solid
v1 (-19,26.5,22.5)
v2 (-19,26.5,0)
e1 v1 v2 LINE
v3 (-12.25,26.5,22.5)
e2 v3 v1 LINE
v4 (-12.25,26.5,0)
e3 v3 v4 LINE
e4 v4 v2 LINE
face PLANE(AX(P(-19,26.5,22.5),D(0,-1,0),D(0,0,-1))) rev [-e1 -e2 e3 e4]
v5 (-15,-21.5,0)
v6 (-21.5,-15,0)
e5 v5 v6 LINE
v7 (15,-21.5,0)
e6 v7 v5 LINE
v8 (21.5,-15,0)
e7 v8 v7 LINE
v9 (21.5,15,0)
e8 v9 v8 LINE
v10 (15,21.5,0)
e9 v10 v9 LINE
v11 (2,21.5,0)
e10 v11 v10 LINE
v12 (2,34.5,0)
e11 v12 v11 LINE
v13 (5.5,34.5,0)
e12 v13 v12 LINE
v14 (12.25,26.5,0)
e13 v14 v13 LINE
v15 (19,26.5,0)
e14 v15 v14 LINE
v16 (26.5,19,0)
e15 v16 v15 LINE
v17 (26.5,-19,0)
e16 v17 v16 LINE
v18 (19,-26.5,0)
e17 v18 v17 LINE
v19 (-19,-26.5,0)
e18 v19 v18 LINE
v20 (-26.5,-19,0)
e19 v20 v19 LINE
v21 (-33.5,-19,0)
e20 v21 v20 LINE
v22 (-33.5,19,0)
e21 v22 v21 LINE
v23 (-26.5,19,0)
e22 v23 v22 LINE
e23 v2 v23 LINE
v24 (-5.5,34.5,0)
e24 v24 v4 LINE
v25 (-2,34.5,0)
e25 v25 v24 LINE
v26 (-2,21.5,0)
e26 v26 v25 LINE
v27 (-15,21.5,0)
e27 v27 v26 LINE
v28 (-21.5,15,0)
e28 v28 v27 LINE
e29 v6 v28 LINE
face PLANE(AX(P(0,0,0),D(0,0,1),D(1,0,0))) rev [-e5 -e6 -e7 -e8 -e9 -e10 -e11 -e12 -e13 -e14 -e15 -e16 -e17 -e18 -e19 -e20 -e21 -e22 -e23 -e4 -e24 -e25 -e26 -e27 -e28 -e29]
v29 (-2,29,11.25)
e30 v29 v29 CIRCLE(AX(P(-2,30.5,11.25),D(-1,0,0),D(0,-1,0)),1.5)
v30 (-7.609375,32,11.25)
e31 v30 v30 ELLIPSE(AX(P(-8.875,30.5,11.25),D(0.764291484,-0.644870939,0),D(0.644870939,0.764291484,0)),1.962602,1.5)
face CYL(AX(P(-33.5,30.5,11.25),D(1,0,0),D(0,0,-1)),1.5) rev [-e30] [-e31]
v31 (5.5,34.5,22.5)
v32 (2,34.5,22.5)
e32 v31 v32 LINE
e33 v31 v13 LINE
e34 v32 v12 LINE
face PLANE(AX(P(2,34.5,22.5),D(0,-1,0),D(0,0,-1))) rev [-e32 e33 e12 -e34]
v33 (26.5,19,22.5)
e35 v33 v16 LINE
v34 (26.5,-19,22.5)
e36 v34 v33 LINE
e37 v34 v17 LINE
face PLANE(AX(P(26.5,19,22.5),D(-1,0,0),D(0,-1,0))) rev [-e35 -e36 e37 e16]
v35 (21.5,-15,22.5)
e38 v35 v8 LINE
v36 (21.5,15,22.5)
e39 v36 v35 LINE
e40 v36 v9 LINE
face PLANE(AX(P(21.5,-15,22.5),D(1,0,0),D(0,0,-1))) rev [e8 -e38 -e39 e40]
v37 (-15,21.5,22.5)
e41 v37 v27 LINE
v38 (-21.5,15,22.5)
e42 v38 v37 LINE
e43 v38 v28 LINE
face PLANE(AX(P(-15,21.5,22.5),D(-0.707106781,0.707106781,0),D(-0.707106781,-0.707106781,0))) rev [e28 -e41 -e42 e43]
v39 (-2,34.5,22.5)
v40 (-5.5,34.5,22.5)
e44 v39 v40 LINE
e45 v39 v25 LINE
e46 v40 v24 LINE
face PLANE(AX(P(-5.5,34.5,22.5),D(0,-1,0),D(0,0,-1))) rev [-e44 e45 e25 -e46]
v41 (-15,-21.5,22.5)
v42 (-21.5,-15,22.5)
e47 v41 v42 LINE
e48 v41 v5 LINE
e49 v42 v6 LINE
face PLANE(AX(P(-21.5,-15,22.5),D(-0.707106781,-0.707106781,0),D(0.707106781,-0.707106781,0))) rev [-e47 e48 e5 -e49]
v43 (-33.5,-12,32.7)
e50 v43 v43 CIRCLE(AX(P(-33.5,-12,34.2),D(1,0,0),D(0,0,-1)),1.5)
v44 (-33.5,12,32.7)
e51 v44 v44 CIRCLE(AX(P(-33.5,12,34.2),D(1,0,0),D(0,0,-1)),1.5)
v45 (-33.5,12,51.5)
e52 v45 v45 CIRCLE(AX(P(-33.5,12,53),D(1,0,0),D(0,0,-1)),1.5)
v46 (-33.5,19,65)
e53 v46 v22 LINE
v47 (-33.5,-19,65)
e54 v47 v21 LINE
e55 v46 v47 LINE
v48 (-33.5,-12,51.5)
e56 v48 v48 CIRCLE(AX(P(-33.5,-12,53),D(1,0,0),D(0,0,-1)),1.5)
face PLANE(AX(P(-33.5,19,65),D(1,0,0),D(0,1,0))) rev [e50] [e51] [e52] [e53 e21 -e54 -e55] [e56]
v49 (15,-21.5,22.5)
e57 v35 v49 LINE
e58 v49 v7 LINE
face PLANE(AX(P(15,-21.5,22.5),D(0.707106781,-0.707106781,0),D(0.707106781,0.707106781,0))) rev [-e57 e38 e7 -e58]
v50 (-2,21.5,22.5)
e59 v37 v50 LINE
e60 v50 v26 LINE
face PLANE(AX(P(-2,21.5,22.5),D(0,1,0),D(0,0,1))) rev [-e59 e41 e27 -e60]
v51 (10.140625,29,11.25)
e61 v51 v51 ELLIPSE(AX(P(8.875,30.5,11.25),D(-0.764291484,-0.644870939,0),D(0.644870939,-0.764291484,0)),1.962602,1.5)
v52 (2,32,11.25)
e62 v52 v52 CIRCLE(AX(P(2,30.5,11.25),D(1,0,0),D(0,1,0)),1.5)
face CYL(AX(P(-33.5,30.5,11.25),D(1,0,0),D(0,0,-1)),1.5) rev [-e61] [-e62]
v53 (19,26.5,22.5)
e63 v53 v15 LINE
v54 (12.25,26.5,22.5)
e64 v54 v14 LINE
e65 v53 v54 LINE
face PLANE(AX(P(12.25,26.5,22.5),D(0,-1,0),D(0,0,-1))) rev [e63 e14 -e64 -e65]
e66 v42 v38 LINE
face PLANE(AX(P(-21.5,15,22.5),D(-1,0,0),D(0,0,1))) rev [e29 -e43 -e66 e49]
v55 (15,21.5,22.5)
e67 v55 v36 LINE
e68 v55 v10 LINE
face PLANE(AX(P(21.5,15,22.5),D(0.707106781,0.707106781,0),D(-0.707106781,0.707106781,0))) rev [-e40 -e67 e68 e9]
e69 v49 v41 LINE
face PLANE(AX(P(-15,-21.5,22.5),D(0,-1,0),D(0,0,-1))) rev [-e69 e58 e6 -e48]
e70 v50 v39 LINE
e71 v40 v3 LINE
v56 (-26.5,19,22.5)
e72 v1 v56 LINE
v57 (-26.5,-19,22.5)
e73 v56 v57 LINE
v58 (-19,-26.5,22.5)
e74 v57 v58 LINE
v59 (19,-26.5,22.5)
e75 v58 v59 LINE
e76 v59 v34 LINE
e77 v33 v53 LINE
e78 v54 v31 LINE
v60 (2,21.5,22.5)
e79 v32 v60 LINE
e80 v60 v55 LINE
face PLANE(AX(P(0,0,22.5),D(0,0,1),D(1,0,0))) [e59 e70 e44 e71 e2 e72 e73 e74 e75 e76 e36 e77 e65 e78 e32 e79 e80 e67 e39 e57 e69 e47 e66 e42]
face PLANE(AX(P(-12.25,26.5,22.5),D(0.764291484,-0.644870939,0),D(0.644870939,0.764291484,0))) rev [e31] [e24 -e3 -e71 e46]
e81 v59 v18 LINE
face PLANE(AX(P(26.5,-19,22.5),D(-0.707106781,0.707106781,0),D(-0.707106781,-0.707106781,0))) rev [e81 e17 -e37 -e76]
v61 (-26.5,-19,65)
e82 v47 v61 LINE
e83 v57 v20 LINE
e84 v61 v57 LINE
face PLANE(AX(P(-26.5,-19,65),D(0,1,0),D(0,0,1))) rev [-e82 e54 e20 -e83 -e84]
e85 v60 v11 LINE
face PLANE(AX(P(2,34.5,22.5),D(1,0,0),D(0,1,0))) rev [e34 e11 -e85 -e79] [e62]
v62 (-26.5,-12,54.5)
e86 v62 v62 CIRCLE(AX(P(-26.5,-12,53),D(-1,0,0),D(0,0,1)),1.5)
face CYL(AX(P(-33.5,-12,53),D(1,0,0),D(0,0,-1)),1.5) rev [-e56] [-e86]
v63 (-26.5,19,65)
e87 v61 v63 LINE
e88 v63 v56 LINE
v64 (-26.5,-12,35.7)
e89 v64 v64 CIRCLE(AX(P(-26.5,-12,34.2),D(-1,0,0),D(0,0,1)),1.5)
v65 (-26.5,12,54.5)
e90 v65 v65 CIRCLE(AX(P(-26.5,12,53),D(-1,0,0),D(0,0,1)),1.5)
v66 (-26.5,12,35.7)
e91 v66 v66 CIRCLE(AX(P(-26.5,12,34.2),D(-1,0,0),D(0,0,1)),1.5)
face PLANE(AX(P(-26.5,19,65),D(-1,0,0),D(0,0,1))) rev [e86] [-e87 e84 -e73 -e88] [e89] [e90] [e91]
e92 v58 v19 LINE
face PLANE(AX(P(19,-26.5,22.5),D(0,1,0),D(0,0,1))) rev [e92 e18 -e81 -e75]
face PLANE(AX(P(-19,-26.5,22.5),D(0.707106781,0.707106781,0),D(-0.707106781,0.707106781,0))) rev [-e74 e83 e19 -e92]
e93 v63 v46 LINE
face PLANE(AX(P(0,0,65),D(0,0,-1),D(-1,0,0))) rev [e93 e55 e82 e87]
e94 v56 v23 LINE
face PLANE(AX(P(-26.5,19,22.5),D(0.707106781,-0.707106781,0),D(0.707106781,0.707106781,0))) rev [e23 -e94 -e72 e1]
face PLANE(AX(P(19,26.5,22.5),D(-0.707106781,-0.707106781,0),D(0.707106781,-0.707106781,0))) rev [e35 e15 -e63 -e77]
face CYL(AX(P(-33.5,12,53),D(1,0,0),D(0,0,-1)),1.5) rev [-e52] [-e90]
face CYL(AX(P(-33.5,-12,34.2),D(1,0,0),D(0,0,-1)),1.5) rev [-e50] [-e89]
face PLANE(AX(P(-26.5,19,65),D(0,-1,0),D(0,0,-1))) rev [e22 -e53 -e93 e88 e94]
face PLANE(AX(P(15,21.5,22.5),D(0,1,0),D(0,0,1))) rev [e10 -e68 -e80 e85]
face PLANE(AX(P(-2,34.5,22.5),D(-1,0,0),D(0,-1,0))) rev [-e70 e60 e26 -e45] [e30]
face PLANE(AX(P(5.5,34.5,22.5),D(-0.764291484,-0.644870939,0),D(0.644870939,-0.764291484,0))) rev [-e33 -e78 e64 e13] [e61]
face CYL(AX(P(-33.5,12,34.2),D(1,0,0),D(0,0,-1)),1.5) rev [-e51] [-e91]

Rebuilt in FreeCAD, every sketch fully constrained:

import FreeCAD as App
import Part
import Sketcher

V = App.Vector
Q = App.Units.Quantity


def add_polygon(sketch, points):
    """Adds a closed chain of lines whose ends are joined by coincident constraints."""
    first, n = sketch.GeometryCount, len(points)
    for a, b in zip(points, points[1:] + points[:1]):
        sketch.addGeometry(Part.LineSegment(App.Vector(*a, 0), App.Vector(*b, 0)), False)
    for i in range(n):
        sketch.addConstraint(Sketcher.Constraint("Coincident", first + i, 2, first + (i + 1) % n, 1))

doc = App.newDocument("Part")
body = doc.addObject("PartDesign::Body", "Body")

sketch1 = body.newObject("Sketcher::SketchObject", "Sketch")
sketch1.AttachmentSupport = (doc.getObject("XY_Plane"), [""])
sketch1.MapMode = "FlatFace"
add_polygon(sketch1, [(-21.5, 15), (-15, 21.5), (-2, 21.5), (-2, 34.5), (-5.5, 34.5), (-12.2, 26.5), (-19, 26.5), (-26.5, 19), (-26.5, -19), (-19, -26.5), (19, -26.5), (26.5, -19), (26.5, 19), (19, 26.5), (12.2, 26.5), (5.5, 34.5), (2, 34.5), (2, 21.5), (15, 21.5), (21.5, 15), (21.5, -15), (15, -21.5), (-15, -21.5), (-21.5, -15)])
sketch1.addConstraint(Sketcher.Constraint("Horizontal", 1))
sketch1.addConstraint(Sketcher.Constraint("Vertical", 2))
sketch1.addConstraint(Sketcher.Constraint("Horizontal", 3))
sketch1.addConstraint(Sketcher.Constraint("Horizontal", 5))
sketch1.addConstraint(Sketcher.Constraint("Vertical", 7))
sketch1.addConstraint(Sketcher.Constraint("Horizontal", 9))
sketch1.addConstraint(Sketcher.Constraint("Vertical", 11))
sketch1.addConstraint(Sketcher.Constraint("Horizontal", 13))
sketch1.addConstraint(Sketcher.Constraint("Horizontal", 15))
sketch1.addConstraint(Sketcher.Constraint("Vertical", 16))
sketch1.addConstraint(Sketcher.Constraint("Horizontal", 17))
sketch1.addConstraint(Sketcher.Constraint("Vertical", 19))
sketch1.addConstraint(Sketcher.Constraint("Horizontal", 21))
sketch1.addConstraint(Sketcher.Constraint("Vertical", 23))
sketch1.addConstraint(Sketcher.Constraint("Symmetric", 5, 2, 9, 2, -1, 1))
sketch1.addConstraint(Sketcher.Constraint("Symmetric", 6, 2, 10, 2, -1, 1))
sketch1.addConstraint(Sketcher.Constraint("Symmetric", 8, 2, 12, 2, -1, 1))
sketch1.addConstraint(Sketcher.Constraint("Symmetric", 0, 2, 20, 2, -1, 1))
sketch1.addConstraint(Sketcher.Constraint("Symmetric", 17, 2, 21, 2, -1, 1))
sketch1.addConstraint(Sketcher.Constraint("Symmetric", 18, 2, 22, 2, -1, 1))
sketch1.addConstraint(Sketcher.Constraint("Symmetric", 3, 2, 14, 2, -2))
sketch1.addConstraint(Sketcher.Constraint("Parallel", 0, 6))
sketch1.addConstraint(Sketcher.Constraint("Perpendicular", 6, 8))
sketch1.addConstraint(Sketcher.Constraint("Perpendicular", 10, 12))
sketch1.addConstraint(Sketcher.Constraint("Parallel", 12, 18))
sketch1.addConstraint(Sketcher.Constraint("Perpendicular", 18, 20))
sketch1.addConstraint(Sketcher.Constraint("Horizontal", 7, 2, 10, 2))
sketch1.addConstraint(Sketcher.Constraint("Horizontal", 19, 2, 22, 2))
sketch1.addConstraint(Sketcher.Constraint("Vertical", 5, 2, 8, 2))
sketch1.addConstraint(Sketcher.Constraint("Equal", 5, 13))
sketch1.addConstraint(Sketcher.Constraint("Equal", 3, 15))
sketch1.addConstraint(Sketcher.Constraint("Equal", 17, 2))
sketch1.addConstraint(Sketcher.Constraint("Equal", 9, 7))
sketch1.addConstraint(Sketcher.Constraint("Equal", 21, 19))
sketch1.addConstraint(Sketcher.Constraint("DistanceX", 1, 1, 1, 2, Q("13 mm")))
sketch1.addConstraint(Sketcher.Constraint("DistanceX", 9, 1, 9, 2, Q("38 mm")))
sketch1.addConstraint(Sketcher.Constraint("DistanceX", 21, 2, 21, 1, Q("30 mm")))
sketch1.addConstraint(Sketcher.Constraint("DistanceX", 3, 2, 3, 1, Q("3.5 mm")))
sketch1.addConstraint(Sketcher.Constraint("DistanceY", 0, 2, 4, 2, Q("5 mm")))
sketch1.addConstraint(Sketcher.Constraint("DistanceX", 6, 2, 3, 2, Q("21 mm")))
sketch1.addConstraint(Sketcher.Constraint("DistanceX", 5, 2, 5, 1, Q("6.75 mm")))
pad1 = body.newObject("PartDesign::Pad", "Pad")
pad1.Profile = sketch1
pad1.Length = 22.5

sketch2 = body.newObject("Sketcher::SketchObject", "Sketch001")
sketch2.AttachmentSupport = (doc.getObject("XY_Plane"), [""])
sketch2.MapMode = "FlatFace"
add_polygon(sketch2, [(-34, 19), (-34, -19), (-26, -19), (-26, 19)])
sketch2.addConstraint(Sketcher.Constraint("Vertical", 0))
sketch2.addConstraint(Sketcher.Constraint("Horizontal", 1))
sketch2.addConstraint(Sketcher.Constraint("Vertical", 2))
sketch2.addConstraint(Sketcher.Constraint("Horizontal", 3))
sketch2.addConstraint(Sketcher.Constraint("DistanceX", 1, 1, 1, 2, Q("7 mm")))
sketch2.addConstraint(Sketcher.Constraint("DistanceY", 0, 2, 0, 1, Q("38 mm")))
sketch2.addConstraint(Sketcher.Constraint("DistanceY", 0, 2, -1, 1, Q("19 mm")))
sketch2.addConstraint(Sketcher.Constraint("DistanceX", 0, 2, -1, 1, Q("33.5 mm")))
pad2 = body.newObject("PartDesign::Pad", "Pad001")
pad2.Profile = sketch2
pad2.Length = 65

sketch3 = body.newObject("Sketcher::SketchObject", "Sketch002")
sketch3.AttachmentSupport = (doc.getObject("YZ_Plane"), [""])
sketch3.MapMode = "FlatFace"
sketch3.addGeometry(Part.Circle(V(30.5, 11.2, 0), V(0, 0, 1), 1.5), False)
sketch3.addGeometry(Part.Circle(V(12, 53, 0), V(0, 0, 1), 1.5), False)
sketch3.addGeometry(Part.Circle(V(12, 34.2, 0), V(0, 0, 1), 1.5), False)
sketch3.addGeometry(Part.Circle(V(-12, 34.2, 0), V(0, 0, 1), 1.5), False)
sketch3.addGeometry(Part.Circle(V(-12, 53, 0), V(0, 0, 1), 1.5), False)
sketch3.addConstraint(Sketcher.Constraint("Equal", 0, 1))
sketch3.addConstraint(Sketcher.Constraint("Equal", 1, 2))
sketch3.addConstraint(Sketcher.Constraint("Equal", 2, 3))
sketch3.addConstraint(Sketcher.Constraint("Equal", 3, 4))
sketch3.addConstraint(Sketcher.Constraint("Symmetric", 2, 3, 3, 3, -2))
sketch3.addConstraint(Sketcher.Constraint("Symmetric", 1, 3, 4, 3, -2))
sketch3.addConstraint(Sketcher.Constraint("Vertical", 1, 3, 2, 3))
sketch3.addConstraint(Sketcher.Constraint("Diameter", 0, Q("3 mm")))
sketch3.addConstraint(Sketcher.Constraint("DistanceX", -1, 1, 1, 3, Q("12 mm")))
sketch3.addConstraint(Sketcher.Constraint("DistanceY", -1, 1, 1, 3, Q("53 mm")))
sketch3.addConstraint(Sketcher.Constraint("DistanceX", -1, 1, 0, 3, Q("30.5 mm")))
sketch3.addConstraint(Sketcher.Constraint("DistanceY", -1, 1, 2, 3, Q("34.2 mm")))
sketch3.addConstraint(Sketcher.Constraint("DistanceY", -1, 1, 0, 3, Q("11.25 mm")))
pocket1 = body.newObject("PartDesign::Pocket", "Pocket")
pocket1.Profile = sketch3
pocket1.Type = "ThroughAll"
pocket1.Midplane = True

doc.recompute()
